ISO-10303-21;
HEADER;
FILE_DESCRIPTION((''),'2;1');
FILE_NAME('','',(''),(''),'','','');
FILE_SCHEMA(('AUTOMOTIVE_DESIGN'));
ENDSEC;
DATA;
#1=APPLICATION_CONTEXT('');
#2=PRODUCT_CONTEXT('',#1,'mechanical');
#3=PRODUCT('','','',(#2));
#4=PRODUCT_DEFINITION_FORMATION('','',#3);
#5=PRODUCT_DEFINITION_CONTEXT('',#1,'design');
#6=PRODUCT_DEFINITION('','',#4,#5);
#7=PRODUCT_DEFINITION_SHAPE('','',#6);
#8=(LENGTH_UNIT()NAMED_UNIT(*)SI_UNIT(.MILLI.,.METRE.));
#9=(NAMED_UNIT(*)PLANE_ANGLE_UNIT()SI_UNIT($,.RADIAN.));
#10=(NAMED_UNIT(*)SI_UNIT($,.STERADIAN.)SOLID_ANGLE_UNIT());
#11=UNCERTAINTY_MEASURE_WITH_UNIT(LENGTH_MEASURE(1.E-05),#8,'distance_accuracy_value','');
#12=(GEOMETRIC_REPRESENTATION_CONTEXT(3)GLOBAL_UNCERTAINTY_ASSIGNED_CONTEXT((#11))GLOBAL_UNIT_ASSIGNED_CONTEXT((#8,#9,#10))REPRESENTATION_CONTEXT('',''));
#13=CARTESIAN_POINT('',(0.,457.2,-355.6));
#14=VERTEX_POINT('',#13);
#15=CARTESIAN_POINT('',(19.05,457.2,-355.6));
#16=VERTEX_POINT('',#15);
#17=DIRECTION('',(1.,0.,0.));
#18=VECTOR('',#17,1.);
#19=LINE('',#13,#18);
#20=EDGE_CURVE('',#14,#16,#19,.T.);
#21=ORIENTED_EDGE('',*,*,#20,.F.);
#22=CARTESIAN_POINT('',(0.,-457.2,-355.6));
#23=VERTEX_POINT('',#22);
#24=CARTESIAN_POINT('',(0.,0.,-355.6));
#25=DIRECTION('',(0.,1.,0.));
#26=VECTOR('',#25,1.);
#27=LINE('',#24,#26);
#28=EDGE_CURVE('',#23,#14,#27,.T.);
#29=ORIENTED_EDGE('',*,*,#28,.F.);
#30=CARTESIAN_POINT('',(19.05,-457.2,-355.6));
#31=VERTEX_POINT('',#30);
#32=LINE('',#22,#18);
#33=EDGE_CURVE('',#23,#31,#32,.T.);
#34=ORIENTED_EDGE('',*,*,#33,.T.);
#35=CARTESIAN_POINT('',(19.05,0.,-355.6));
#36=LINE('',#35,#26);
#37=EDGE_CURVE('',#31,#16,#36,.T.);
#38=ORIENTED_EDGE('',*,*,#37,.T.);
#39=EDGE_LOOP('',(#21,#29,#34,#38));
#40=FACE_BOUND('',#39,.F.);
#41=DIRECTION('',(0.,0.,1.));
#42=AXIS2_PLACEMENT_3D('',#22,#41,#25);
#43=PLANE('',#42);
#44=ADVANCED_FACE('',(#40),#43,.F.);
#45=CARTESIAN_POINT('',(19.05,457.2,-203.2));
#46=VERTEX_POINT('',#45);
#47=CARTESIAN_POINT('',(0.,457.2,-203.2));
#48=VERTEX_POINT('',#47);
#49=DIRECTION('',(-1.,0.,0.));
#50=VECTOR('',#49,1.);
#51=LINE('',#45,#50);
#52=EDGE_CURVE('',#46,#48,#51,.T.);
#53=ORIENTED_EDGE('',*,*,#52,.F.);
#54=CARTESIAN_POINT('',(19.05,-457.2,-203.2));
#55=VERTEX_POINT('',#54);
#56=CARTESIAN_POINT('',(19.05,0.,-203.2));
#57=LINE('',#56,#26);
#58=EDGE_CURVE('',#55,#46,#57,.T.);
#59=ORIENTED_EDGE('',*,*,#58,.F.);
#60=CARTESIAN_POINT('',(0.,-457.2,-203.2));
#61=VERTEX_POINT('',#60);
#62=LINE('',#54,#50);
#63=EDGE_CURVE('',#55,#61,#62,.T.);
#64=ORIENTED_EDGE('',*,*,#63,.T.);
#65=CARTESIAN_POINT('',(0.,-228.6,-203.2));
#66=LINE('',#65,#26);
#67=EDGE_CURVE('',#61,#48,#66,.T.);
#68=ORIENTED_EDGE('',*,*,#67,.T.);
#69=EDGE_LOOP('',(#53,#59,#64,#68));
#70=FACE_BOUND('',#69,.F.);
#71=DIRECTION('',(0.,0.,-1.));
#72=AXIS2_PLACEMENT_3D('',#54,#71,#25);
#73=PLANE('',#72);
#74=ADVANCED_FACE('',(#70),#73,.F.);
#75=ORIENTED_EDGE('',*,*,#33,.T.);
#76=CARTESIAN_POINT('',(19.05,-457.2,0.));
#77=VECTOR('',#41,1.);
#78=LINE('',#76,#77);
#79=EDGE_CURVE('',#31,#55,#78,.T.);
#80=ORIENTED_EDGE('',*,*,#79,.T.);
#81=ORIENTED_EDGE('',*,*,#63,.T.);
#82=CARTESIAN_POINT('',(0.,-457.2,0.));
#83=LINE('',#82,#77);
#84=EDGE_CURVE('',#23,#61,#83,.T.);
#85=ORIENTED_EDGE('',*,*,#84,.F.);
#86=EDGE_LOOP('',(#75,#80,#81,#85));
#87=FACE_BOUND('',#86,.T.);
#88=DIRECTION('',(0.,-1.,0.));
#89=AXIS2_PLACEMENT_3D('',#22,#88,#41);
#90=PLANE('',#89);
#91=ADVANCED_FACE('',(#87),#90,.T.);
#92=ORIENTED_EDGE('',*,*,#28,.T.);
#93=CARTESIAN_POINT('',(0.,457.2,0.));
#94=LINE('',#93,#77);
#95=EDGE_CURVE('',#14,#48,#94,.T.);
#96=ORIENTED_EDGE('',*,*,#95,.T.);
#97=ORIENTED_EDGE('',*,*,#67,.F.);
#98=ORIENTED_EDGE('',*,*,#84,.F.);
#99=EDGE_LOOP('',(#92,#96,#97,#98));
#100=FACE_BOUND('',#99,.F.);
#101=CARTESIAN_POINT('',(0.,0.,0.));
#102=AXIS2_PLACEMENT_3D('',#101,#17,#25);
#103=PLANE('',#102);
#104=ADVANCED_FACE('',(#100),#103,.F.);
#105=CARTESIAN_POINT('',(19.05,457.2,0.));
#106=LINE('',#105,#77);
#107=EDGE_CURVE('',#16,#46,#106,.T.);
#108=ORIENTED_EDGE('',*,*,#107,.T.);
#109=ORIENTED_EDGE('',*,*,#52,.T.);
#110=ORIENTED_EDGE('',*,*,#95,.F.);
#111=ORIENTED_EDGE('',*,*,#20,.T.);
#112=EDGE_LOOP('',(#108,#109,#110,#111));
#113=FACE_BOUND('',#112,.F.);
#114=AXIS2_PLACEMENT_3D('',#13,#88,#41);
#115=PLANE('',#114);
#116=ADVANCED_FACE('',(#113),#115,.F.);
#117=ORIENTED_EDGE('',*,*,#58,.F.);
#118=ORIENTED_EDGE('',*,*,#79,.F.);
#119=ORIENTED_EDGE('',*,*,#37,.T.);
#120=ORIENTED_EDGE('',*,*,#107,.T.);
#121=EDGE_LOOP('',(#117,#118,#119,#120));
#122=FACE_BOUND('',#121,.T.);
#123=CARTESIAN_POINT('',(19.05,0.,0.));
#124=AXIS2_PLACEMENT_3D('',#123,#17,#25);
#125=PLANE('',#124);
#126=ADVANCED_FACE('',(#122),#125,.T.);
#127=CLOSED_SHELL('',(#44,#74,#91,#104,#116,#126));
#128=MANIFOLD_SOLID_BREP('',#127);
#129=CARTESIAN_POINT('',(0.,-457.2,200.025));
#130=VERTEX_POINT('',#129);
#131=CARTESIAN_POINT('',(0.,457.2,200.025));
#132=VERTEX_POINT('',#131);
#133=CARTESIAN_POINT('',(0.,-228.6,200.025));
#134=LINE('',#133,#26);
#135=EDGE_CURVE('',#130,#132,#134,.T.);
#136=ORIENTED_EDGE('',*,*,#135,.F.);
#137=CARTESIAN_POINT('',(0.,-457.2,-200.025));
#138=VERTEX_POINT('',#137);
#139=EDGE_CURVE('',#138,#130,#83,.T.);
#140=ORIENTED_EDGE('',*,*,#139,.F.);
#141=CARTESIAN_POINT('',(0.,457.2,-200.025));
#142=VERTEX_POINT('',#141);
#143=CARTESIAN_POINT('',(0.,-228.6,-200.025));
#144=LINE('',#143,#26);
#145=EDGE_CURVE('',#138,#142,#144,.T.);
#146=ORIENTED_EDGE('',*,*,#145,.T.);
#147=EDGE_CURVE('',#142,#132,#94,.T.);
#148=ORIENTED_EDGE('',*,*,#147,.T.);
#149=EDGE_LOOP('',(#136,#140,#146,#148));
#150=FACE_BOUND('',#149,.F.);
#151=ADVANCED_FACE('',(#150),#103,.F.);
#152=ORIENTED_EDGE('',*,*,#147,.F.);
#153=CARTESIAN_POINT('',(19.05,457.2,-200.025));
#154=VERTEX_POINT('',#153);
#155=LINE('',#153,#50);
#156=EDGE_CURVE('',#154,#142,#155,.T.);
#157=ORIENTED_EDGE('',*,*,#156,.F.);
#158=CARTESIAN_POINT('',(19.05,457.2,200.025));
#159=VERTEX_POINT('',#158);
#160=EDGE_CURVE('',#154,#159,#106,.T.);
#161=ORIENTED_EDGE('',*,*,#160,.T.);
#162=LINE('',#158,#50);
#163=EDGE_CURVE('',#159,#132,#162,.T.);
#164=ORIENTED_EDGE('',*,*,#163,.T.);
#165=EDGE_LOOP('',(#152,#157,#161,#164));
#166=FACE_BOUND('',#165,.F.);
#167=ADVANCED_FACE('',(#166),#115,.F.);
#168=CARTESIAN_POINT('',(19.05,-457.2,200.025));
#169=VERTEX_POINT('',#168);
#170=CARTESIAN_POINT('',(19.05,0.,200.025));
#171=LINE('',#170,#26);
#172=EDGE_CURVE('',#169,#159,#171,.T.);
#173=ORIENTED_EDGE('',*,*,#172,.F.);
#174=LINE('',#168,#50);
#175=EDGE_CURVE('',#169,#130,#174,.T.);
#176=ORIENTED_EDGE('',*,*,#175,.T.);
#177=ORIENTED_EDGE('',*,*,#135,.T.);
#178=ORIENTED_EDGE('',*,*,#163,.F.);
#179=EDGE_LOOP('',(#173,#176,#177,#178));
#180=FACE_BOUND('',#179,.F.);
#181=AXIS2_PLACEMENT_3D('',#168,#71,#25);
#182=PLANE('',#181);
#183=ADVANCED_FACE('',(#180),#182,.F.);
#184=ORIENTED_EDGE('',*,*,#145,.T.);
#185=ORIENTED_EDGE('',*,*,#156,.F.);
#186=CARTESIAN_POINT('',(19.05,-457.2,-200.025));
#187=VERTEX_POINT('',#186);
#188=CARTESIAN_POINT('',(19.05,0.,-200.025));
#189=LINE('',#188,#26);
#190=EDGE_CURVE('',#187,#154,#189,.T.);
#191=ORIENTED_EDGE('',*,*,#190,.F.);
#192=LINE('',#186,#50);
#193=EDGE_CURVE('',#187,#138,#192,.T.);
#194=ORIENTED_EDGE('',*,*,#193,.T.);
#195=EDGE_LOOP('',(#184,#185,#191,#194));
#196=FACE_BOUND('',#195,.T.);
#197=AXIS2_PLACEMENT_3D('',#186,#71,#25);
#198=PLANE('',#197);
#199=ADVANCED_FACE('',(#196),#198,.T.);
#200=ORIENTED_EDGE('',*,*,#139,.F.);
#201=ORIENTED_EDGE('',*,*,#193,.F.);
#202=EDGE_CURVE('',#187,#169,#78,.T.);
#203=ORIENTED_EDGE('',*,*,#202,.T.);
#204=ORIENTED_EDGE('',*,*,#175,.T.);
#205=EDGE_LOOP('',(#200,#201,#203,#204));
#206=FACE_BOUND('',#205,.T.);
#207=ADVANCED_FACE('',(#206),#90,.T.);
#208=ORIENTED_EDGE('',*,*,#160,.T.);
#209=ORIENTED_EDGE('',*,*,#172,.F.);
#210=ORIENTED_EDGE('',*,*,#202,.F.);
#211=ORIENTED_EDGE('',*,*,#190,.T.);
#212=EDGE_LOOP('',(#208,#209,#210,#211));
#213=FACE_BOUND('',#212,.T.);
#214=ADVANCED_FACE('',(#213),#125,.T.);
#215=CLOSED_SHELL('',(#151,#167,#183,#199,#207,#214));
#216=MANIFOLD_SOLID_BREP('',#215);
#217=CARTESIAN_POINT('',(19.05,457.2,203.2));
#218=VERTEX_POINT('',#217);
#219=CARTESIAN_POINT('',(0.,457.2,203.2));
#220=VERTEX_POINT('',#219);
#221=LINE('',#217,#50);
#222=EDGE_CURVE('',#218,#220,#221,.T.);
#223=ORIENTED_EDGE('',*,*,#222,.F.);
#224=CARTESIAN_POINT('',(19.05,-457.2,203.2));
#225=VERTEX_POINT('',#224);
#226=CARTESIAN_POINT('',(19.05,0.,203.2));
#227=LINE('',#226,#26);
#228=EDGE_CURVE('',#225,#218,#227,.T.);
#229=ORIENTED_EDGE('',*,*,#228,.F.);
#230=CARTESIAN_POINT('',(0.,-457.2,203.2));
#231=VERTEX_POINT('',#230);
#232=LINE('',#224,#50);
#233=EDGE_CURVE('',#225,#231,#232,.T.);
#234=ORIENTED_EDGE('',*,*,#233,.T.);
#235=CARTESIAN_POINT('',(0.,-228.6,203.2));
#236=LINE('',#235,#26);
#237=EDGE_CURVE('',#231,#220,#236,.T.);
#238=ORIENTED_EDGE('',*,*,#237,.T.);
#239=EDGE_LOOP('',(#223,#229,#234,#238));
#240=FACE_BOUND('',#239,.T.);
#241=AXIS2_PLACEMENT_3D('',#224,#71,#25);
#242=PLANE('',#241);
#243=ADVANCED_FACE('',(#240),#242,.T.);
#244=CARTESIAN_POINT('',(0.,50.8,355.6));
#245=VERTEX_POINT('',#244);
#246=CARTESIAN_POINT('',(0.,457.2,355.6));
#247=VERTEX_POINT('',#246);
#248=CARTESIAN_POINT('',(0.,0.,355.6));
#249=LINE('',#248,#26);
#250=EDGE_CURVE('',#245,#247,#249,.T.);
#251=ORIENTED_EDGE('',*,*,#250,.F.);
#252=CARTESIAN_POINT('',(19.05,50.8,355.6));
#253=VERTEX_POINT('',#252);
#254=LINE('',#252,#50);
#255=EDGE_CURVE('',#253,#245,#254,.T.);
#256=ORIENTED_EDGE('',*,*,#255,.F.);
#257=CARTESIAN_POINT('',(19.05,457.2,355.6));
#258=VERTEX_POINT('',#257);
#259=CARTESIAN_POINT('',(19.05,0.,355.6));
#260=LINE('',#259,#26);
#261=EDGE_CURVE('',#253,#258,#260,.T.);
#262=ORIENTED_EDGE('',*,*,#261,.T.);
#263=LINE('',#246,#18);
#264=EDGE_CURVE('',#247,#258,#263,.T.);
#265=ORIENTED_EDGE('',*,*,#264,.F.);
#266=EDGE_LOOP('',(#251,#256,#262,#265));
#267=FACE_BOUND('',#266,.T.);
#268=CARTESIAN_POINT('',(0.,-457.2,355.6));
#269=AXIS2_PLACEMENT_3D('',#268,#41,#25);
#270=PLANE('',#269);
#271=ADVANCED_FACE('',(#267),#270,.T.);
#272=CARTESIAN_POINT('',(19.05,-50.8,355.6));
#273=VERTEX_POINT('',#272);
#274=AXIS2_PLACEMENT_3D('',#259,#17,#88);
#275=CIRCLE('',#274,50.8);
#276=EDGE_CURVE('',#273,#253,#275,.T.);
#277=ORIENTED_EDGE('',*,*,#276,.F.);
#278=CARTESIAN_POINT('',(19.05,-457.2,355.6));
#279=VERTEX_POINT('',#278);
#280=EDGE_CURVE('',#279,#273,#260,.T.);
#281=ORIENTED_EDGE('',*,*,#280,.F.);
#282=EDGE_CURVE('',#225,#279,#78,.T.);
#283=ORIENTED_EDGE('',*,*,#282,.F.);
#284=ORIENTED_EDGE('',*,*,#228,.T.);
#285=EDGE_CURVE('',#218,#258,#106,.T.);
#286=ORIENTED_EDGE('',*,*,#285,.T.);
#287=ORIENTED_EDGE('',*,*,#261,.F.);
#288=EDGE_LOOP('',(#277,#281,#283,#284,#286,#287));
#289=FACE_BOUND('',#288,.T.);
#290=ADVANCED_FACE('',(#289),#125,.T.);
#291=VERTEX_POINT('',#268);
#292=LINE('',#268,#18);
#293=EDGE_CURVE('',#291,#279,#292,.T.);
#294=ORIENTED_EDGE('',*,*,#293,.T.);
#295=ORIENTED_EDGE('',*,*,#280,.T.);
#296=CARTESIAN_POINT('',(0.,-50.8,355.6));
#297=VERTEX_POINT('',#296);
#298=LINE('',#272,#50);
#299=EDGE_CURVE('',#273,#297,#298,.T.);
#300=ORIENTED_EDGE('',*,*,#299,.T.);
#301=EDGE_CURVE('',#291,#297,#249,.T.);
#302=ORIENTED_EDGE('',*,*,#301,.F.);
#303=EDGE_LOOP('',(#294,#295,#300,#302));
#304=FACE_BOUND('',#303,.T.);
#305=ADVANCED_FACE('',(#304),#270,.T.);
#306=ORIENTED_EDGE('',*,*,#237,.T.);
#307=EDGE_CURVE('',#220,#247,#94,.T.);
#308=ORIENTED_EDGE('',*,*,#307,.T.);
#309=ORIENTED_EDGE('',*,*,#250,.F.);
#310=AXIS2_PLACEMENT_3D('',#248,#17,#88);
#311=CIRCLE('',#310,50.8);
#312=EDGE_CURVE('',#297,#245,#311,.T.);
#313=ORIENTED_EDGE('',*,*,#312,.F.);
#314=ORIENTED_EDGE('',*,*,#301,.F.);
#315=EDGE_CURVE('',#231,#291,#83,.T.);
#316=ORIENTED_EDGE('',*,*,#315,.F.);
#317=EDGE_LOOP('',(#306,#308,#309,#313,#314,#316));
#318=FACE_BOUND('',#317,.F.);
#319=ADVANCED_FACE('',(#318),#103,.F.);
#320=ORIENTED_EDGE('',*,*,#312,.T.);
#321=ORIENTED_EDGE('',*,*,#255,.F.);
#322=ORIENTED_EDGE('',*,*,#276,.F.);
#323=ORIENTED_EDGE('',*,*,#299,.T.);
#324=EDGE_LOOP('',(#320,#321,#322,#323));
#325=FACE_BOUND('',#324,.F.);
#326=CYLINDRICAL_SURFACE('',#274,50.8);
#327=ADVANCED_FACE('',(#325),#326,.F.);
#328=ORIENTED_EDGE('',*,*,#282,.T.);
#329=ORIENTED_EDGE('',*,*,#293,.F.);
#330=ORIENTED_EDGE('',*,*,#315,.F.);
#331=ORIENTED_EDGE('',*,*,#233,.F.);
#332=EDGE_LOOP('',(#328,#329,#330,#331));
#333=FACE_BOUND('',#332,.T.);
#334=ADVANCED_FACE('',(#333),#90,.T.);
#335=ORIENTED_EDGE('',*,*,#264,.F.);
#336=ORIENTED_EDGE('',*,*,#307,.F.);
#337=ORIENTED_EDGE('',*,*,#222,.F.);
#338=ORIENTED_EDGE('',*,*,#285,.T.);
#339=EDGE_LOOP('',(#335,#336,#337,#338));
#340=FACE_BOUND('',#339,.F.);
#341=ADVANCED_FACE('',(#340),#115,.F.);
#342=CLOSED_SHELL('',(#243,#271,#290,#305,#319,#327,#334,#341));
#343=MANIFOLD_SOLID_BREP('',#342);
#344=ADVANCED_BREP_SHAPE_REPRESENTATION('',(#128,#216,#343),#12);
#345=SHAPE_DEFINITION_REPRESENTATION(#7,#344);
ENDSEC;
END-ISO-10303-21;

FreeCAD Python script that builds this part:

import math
import FreeCAD as App
import Part
import Sketcher
Q = App.Units.Quantity

doc = App.newDocument("Part")
body = doc.addObject("PartDesign::Body", "Body")
body.AllowCompound = True

# Sketch on YZ plane
sketch1 = body.newObject("Sketcher::SketchObject", "Sketch")
sketch1.AttachmentSupport = (doc.getObject("YZ_Plane"), [""])
sketch1.MapMode = "FlatFace"
sketch1.addGeometry([
    Part.LineSegment(App.Vector(-457, 356, 0), App.Vector(-457, -356, 0)),
    Part.LineSegment(App.Vector(-457, -356, 0), App.Vector(457, -356, 0)),
    Part.LineSegment(App.Vector(457, -356, 0), App.Vector(457, 356, 0)),
    Part.LineSegment(App.Vector(457, 356, 0), App.Vector(-457, 356, 0)),
], False)
sketch1.addConstraint([
    Sketcher.Constraint("Coincident", 0, 2, 1, 1),
    Sketcher.Constraint("Coincident", 1, 2, 2, 1),
    Sketcher.Constraint("Coincident", 2, 2, 3, 1),
    Sketcher.Constraint("Coincident", 3, 2, 0, 1),
    Sketcher.Constraint("Vertical", 0),
    Sketcher.Constraint("Horizontal", 1),
    Sketcher.Constraint("Vertical", 2),
    Sketcher.Constraint("Horizontal", 3),
    Sketcher.Constraint("Symmetric", 0, 2, 2, 2, -1, 1),
    Sketcher.Constraint("DistanceX", 1, 1, 1, 2, Q("36 in")),
    Sketcher.Constraint("DistanceY", 0, 2, 0, 1, Q("28 in")),
])
pad1 = body.newObject("PartDesign::Pad", "Pad")
pad1.Profile = sketch1
pad1.Length = Q("0.75 in")

# Sketch on YZ plane
sketch2 = body.newObject("Sketcher::SketchObject", "Sketch001")
sketch2.AttachmentSupport = (doc.getObject("YZ_Plane"), [""])
sketch2.MapMode = "FlatFace"
sketch2.AttachmentOffset = App.Placement(App.Vector(0, 0, 0.75 * 25.4), App.Rotation())
sketch2.addGeometry([
    Part.ArcOfCircle(Part.Circle(App.Vector(0, 356, 0), App.Vector(0, 0, 1), 51), math.radians(180), math.radians(360)),
    Part.LineSegment(App.Vector(51, 356, 0), App.Vector(-51, 356, 0)),
], False)
sketch2.addConstraint([
    Sketcher.Constraint("Coincident", 0, 1, 1, 2),
    Sketcher.Constraint("Coincident", 1, 1, 0, 2),
    Sketcher.Constraint("Horizontal", 1),
    Sketcher.Constraint("PointOnObject", 0, 3, -2),
    Sketcher.Constraint("Radius", 0, Q("2 in")),
    Sketcher.Constraint("DistanceY", -1, 1, 0, 3, Q("14 in")),
    Sketcher.Constraint("DistanceY", -1, 1, 0, 1, Q("14 in")),
])
pocket1 = body.newObject("PartDesign::Pocket", "Pocket")
pocket1.Profile = sketch2
pocket1.Length = Q("1 in")

# Sketch on YZ plane
sketch3 = body.newObject("Sketcher::SketchObject", "Sketch002")
sketch3.AttachmentSupport = (doc.getObject("YZ_Plane"), [""])
sketch3.MapMode = "FlatFace"
sketch3.AttachmentOffset = App.Placement(App.Vector(0, 0, 0.75 * 25.4), App.Rotation())
sketch3.addGeometry([
    Part.LineSegment(App.Vector(-457.2, 203.2, 0), App.Vector(-457.2, 200, 0)),  # 0
    Part.LineSegment(App.Vector(-457.2, 200, 0), App.Vector(457.2, 200, 0)),  # 1
    Part.LineSegment(App.Vector(457.2, 200, 0), App.Vector(457.2, 203.2, 0)),  # 2
    Part.LineSegment(App.Vector(457.2, 203.2, 0), App.Vector(-457.2, 203.2, 0)),  # 3
    Part.LineSegment(App.Vector(-457.2, -200, 0), App.Vector(-457.2, -203.2, 0)),  # 4
    Part.LineSegment(App.Vector(-457.2, -203.2, 0), App.Vector(457.2, -203.2, 0)),  # 5
    Part.LineSegment(App.Vector(457.2, -203.2, 0), App.Vector(457.2, -200, 0)),  # 6
    Part.LineSegment(App.Vector(457.2, -200, 0), App.Vector(-457.2, -200, 0)),  # 7
], False)
sketch3.addConstraint([
    Sketcher.Constraint("Coincident", 0, 2, 1, 1),
    Sketcher.Constraint("Coincident", 1, 2, 2, 1),
    Sketcher.Constraint("Coincident", 2, 2, 3, 1),
    Sketcher.Constraint("Coincident", 3, 2, 0, 1),
    Sketcher.Constraint("Coincident", 4, 2, 5, 1),
    Sketcher.Constraint("Coincident", 5, 2, 6, 1),
    Sketcher.Constraint("Coincident", 6, 2, 7, 1),
    Sketcher.Constraint("Coincident", 7, 2, 4, 1),
    Sketcher.Constraint("Vertical", 0),
    Sketcher.Constraint("Horizontal", 1),
    Sketcher.Constraint("Vertical", 2),
    Sketcher.Constraint("Horizontal", 3),
    Sketcher.Constraint("Vertical", 4),
    Sketcher.Constraint("Horizontal", 5),
    Sketcher.Constraint("Vertical", 6),
    Sketcher.Constraint("Horizontal", 7),
    Sketcher.Constraint("Symmetric", 2, 2, 4, 2, -1, 1),
    Sketcher.Constraint("Symmetric", 0, 2, 6, 2, -1, 1),
    Sketcher.Constraint("Vertical", 3, 2, 4, 2),
    Sketcher.Constraint("DistanceX", 1, 1, 1, 2, Q("36 in")),
    Sketcher.Constraint("DistanceY", -1, 1, 2, 2, Q("8 in")),
    Sketcher.Constraint("DistanceY", 0, 2, 0, 1, Q("0.125 in")),
])
pocket2 = body.newObject("PartDesign::Pocket", "Pocket001")
pocket2.Profile = sketch3
pocket2.Length = Q("1 in")

doc.recompute()
